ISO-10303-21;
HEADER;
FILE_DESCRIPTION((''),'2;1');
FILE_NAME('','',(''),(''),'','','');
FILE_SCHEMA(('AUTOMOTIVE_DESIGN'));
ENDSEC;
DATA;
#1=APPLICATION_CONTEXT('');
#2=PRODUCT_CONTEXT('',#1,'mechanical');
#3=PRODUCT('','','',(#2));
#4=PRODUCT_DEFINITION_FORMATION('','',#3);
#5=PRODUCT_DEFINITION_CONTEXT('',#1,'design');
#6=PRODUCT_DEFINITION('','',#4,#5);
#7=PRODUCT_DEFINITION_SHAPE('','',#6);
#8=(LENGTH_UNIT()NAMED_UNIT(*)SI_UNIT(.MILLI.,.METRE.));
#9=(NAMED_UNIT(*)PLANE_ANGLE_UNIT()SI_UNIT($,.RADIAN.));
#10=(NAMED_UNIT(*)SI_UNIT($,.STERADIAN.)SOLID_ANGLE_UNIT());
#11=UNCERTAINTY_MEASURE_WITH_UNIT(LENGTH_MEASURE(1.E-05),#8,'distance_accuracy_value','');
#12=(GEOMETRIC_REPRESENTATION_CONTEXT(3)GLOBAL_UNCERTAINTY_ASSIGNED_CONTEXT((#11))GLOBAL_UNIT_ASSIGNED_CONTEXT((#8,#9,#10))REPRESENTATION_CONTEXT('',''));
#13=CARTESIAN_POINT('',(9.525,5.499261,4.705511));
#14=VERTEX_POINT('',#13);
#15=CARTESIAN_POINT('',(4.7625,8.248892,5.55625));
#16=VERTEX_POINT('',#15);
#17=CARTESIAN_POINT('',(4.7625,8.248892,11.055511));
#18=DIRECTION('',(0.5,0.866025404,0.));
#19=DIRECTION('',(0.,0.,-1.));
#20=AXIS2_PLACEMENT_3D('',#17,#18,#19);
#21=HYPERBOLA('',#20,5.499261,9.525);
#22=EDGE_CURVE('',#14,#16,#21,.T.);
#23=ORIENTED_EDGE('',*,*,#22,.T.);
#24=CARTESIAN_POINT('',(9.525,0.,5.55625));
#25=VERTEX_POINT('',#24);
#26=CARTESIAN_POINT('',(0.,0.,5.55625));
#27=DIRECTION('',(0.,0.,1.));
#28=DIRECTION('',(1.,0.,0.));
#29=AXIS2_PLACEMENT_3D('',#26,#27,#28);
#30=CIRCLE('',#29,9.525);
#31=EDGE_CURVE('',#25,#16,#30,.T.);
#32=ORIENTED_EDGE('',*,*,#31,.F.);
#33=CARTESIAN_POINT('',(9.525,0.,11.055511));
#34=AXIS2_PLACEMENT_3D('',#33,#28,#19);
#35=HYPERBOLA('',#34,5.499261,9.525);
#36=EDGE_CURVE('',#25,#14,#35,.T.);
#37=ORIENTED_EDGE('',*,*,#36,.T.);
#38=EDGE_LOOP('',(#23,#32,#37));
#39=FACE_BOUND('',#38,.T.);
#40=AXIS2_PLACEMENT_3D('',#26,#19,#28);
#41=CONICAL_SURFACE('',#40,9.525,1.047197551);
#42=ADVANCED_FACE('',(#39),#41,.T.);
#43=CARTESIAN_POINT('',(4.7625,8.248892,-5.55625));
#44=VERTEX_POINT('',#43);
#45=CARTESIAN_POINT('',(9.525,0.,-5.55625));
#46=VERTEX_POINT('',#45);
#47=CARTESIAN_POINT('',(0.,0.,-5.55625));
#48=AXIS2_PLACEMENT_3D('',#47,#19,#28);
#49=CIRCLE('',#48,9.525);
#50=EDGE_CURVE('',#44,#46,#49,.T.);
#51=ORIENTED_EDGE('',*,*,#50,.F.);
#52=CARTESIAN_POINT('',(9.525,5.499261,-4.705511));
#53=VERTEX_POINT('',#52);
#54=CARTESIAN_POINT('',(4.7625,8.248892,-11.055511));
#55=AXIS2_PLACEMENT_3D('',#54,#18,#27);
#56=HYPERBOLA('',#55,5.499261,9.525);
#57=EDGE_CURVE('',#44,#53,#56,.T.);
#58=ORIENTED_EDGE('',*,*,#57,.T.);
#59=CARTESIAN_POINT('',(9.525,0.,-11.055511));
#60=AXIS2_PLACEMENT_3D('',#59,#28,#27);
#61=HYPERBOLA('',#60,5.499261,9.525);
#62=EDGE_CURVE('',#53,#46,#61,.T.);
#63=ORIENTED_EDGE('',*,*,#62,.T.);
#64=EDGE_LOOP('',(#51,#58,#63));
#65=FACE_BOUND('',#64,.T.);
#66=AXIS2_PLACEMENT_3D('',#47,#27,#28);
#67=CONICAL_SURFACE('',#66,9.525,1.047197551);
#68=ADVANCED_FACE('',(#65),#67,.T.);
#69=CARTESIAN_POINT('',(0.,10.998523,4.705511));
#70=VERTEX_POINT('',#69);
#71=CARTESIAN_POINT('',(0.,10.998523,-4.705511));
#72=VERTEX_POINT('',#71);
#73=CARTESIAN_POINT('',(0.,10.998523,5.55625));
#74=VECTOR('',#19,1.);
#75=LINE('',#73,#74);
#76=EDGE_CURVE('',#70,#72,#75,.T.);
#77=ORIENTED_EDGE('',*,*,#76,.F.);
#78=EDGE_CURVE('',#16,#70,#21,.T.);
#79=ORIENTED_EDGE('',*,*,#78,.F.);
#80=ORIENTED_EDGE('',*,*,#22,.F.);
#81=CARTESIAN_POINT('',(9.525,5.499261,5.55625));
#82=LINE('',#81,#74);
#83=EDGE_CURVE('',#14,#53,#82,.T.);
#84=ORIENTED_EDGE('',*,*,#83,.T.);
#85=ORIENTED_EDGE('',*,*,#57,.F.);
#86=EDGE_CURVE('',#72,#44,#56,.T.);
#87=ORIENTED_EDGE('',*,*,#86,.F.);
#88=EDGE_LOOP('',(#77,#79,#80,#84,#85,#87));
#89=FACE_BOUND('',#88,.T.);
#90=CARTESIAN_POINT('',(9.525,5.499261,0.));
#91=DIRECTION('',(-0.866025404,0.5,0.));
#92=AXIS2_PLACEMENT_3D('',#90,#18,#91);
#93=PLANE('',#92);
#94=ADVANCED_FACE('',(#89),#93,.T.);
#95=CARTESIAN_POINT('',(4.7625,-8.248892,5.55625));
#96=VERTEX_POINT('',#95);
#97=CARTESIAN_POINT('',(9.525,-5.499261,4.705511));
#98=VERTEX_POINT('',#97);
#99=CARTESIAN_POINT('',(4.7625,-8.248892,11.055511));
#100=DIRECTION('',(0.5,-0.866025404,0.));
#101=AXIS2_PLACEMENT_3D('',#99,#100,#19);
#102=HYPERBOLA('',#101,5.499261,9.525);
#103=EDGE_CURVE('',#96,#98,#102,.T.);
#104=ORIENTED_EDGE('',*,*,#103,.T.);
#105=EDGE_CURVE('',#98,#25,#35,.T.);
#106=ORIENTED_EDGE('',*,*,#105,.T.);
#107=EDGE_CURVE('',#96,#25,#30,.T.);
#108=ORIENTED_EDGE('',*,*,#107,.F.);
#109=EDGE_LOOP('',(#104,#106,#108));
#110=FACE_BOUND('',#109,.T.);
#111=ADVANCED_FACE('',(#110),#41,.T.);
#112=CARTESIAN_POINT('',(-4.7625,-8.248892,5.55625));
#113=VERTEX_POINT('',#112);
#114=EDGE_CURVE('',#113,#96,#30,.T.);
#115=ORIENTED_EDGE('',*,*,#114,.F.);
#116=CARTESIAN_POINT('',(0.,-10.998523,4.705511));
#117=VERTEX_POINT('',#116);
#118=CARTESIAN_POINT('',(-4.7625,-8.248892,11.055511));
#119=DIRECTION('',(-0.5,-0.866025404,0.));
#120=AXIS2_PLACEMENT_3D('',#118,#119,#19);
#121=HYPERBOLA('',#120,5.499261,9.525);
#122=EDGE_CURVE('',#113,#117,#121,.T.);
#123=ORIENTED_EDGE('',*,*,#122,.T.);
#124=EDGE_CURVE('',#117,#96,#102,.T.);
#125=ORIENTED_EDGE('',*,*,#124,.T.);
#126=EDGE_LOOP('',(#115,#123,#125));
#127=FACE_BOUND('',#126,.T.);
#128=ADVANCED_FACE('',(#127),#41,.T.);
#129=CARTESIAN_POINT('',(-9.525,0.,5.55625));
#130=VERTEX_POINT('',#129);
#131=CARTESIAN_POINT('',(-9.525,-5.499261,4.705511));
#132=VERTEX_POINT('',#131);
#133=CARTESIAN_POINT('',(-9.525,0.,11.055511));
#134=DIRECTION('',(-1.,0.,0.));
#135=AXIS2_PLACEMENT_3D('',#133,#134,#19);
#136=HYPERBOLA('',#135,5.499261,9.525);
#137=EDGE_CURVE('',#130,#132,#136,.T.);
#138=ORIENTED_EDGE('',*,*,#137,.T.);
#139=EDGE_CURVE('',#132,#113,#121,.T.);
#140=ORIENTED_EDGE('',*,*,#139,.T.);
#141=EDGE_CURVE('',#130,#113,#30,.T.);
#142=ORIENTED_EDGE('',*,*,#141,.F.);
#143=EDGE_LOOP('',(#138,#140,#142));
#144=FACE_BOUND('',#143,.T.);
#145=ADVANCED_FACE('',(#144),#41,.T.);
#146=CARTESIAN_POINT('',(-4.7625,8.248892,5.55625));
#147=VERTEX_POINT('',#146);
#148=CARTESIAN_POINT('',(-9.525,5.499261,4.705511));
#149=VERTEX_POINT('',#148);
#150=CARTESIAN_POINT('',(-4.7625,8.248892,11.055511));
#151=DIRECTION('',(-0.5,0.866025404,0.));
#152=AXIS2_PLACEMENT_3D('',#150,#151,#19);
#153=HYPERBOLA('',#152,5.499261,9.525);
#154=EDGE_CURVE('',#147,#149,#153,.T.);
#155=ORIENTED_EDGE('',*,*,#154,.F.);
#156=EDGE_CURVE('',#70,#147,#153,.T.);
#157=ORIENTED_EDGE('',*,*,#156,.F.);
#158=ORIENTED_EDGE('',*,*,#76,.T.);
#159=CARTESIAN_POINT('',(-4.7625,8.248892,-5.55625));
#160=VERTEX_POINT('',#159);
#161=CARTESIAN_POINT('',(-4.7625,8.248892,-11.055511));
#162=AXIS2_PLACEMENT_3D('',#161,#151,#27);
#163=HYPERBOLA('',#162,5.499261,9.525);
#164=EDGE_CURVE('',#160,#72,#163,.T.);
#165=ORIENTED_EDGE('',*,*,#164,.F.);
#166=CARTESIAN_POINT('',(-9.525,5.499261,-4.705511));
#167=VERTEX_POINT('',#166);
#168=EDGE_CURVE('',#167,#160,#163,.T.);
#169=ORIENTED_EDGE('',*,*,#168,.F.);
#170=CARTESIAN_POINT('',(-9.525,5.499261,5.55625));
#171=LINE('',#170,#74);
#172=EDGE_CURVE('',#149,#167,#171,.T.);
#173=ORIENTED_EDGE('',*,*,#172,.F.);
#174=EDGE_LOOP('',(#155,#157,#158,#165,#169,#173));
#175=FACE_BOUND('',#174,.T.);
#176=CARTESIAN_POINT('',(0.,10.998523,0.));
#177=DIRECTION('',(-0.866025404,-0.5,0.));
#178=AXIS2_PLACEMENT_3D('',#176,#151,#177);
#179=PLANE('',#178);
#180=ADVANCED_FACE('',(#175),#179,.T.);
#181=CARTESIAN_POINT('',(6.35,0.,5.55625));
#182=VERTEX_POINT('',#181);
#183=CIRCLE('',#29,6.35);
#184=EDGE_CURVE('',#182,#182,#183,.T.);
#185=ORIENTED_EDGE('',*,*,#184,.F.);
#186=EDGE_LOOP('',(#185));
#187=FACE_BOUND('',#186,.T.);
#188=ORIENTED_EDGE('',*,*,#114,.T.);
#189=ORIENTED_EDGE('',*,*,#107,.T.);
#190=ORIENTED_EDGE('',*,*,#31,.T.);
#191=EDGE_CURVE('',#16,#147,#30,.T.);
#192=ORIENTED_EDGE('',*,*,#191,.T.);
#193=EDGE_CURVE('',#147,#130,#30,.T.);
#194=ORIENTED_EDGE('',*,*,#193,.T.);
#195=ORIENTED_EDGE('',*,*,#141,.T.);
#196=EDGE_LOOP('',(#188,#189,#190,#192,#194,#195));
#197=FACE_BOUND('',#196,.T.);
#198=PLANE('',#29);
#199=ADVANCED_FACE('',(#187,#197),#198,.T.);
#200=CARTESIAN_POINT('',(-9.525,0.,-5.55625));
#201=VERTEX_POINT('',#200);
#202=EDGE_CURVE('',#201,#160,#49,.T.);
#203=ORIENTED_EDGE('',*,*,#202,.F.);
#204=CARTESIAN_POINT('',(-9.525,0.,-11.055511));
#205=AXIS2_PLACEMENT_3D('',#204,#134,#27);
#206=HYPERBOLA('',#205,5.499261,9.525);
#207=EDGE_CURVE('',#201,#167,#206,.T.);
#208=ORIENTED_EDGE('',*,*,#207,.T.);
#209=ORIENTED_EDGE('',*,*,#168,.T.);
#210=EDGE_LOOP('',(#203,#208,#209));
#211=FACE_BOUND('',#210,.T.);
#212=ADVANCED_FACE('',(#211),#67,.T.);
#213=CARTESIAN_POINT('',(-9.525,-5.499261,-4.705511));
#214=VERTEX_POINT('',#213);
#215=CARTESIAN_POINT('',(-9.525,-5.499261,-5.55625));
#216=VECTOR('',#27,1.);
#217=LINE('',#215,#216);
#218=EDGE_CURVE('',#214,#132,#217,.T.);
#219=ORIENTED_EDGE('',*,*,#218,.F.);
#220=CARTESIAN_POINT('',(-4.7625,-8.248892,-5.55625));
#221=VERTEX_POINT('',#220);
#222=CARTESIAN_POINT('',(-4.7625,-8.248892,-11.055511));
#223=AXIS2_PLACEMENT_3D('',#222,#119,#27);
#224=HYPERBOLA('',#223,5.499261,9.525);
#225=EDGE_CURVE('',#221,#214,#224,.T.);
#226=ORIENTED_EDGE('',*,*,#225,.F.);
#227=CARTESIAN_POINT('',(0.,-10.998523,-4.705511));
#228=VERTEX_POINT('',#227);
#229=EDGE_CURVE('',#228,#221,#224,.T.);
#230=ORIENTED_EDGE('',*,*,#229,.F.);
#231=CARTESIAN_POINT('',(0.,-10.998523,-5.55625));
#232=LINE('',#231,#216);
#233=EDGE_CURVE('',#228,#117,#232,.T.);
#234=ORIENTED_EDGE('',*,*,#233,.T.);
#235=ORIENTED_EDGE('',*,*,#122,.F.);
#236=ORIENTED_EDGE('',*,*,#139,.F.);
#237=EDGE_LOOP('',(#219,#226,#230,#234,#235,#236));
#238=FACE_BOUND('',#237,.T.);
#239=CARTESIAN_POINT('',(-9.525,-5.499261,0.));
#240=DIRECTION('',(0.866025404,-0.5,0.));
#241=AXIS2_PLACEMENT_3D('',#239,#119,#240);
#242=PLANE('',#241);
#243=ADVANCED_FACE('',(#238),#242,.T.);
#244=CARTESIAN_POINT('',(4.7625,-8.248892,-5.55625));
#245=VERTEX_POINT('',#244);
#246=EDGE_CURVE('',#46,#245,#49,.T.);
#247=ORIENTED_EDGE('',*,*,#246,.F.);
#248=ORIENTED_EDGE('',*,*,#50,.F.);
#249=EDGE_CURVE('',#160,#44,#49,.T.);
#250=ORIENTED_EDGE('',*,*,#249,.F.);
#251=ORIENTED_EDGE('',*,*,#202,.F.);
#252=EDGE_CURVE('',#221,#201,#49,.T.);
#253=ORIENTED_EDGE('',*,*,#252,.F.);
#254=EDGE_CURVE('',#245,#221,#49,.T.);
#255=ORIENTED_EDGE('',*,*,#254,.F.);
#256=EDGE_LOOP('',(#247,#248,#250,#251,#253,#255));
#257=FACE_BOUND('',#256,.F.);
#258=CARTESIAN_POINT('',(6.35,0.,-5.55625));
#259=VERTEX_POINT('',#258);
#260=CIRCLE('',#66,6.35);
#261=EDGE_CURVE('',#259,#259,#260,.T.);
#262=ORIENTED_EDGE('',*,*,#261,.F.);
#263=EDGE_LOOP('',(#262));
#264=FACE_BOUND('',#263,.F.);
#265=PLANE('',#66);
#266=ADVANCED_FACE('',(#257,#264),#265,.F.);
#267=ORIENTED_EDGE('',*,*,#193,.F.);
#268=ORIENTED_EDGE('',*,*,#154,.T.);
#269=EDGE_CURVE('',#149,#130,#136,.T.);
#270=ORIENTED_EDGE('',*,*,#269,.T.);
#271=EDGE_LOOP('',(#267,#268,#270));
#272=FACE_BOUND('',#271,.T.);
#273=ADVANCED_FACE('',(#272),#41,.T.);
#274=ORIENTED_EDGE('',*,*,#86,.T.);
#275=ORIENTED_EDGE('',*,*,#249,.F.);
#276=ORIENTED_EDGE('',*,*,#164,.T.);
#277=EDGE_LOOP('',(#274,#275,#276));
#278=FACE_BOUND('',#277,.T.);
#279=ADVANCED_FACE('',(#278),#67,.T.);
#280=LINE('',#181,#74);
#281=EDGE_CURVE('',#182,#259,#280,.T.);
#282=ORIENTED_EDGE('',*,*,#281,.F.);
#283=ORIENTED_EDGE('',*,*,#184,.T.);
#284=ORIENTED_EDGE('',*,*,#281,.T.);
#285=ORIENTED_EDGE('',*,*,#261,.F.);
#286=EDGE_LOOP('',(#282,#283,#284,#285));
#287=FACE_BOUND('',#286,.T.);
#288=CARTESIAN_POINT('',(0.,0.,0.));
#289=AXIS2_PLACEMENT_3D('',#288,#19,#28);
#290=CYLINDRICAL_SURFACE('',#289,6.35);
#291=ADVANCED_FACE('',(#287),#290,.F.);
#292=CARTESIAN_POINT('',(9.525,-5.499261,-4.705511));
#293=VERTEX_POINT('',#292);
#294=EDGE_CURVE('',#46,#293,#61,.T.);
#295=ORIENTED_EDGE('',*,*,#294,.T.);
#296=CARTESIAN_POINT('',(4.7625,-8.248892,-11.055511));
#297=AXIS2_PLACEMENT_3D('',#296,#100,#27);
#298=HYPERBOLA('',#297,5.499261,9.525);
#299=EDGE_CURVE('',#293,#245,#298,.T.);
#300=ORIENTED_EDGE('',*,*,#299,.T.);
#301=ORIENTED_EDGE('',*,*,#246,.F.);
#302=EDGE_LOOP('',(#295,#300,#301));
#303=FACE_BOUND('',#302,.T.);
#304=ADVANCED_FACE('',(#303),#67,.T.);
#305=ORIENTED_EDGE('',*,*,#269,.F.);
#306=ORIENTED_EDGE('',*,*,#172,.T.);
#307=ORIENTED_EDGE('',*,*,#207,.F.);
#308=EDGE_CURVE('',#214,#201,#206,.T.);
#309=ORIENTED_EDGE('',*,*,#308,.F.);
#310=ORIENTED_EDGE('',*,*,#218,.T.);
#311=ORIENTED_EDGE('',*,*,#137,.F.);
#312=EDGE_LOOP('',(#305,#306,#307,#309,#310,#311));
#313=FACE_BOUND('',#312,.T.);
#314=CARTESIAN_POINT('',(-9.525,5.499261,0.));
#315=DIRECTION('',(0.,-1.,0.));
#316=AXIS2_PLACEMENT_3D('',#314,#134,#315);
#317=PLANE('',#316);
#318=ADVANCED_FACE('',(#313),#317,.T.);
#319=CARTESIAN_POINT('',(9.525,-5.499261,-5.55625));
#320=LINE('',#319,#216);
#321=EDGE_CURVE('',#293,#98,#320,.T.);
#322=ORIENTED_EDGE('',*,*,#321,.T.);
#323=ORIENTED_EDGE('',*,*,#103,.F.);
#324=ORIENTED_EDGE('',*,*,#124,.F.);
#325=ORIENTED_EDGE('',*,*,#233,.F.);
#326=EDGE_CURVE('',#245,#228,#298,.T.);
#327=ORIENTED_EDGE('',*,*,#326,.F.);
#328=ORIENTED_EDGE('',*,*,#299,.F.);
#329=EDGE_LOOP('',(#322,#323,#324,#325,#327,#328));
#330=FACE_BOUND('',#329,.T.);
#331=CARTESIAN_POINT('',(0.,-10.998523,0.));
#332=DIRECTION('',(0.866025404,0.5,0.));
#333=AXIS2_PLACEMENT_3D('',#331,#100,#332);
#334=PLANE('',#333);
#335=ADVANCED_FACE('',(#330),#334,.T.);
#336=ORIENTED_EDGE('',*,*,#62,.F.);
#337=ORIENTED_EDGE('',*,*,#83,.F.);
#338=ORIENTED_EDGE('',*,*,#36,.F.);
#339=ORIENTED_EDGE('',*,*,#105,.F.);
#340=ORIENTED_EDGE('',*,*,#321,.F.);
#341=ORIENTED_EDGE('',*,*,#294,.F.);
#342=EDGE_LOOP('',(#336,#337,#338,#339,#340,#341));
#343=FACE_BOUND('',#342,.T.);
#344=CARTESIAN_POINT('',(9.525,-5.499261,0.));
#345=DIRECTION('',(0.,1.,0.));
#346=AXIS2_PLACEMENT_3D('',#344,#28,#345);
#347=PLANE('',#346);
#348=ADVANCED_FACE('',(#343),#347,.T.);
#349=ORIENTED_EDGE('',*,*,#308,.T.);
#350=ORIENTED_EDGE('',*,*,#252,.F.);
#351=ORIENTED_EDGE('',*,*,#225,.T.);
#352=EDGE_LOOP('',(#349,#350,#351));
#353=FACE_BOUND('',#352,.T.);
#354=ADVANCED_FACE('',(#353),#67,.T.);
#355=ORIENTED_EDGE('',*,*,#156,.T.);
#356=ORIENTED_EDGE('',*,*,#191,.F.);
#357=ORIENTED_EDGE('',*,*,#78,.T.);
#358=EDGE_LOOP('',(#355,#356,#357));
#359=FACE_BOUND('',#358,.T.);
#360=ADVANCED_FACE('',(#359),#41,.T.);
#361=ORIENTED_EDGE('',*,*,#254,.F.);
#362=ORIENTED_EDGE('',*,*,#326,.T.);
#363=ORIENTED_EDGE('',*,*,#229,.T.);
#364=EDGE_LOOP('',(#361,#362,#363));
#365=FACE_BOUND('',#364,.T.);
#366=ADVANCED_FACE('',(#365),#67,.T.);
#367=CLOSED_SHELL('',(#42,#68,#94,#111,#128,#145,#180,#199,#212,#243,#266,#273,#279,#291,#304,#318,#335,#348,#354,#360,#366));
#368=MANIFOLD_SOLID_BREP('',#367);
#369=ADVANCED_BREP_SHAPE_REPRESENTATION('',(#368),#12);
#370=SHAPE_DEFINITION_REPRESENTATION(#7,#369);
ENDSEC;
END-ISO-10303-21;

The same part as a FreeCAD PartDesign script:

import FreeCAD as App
import Part
import Sketcher
Q = App.Units.Quantity


def faces_at(feature, points):
    """Names of the faces that lie closest to the given points."""
    faces = feature.Shape.Faces
    near = lambda p: min(range(len(faces)), key=lambda i: faces[i].distToShape(Part.Vertex(*p))[0])
    return sorted({f"Face{near(p) + 1}" for p in points})


def add_polygon(sketch, points):
    """Adds a closed chain of lines whose ends are joined by coincident constraints."""
    first, n = sketch.GeometryCount, len(points)
    for a, b in zip(points, points[1:] + points[:1]):
        sketch.addGeometry(Part.LineSegment(App.Vector(*a, 0), App.Vector(*b, 0)), False)
    for i in range(n):
        sketch.addConstraint(Sketcher.Constraint("Coincident", first + i, 2, first + (i + 1) % n, 1))

doc = App.newDocument("Part")
body = doc.addObject("PartDesign::Body", "Body")

# Sketch on XY plane
sketch1 = doc.addObject("Sketcher::SketchObject", "Sketch")
body.addObject(sketch1)
sketch1.AttachmentSupport = (doc.XY_Plane, [""])
sketch1.MapMode = "FlatFace"
add_polygon(sketch1, [(-10, 5), (-10, -5), (0, -11), (10, -5), (10, 5), (0, 11)])  # lines 0-5
sketch1.addGeometry(Part.Circle(App.Vector(0, 0, 0), App.Vector(0, 0, 1), 6), False)  # 6
sketch1.addConstraint([
    Sketcher.Constraint("Vertical", 0),
    Sketcher.Constraint("Vertical", 3),
    Sketcher.Constraint("Coincident", 6, 3, -1, 1),
    Sketcher.Constraint("Symmetric", 0, 2, 3, 2, -1, 1),
    Sketcher.Constraint("Symmetric", 1, 2, 4, 2, -1, 1),
    Sketcher.Constraint("PointOnObject", 1, 2, -2),
    Sketcher.Constraint("Parallel", 2, 5),
    Sketcher.Constraint("Horizontal", 0, 2, 2, 2),
    Sketcher.Constraint("Diameter", 6, Q("0.5 in")),
    Sketcher.Constraint("Angle", 1, Q("-30 deg")),
    Sketcher.Constraint("DistanceX", 0, 2, 2, 2, Q("0.75 in")),
    Sketcher.Constraint("DistanceY", 0, 2, 0, 1, 10.998523),
])
pad1 = doc.addObject("PartDesign::Pad", "Pad")
body.addObject(pad1)
pad1.Profile = sketch1
pad1.Length = Q("0.4375 in")
pad1.Midplane = True
body2 = doc.addObject("PartDesign::Body", "Body001")

# Sketch on XY plane
sketch2 = doc.addObject("Sketcher::SketchObject", "Sketch001")
body2.addObject(sketch2)
sketch2.AttachmentSupport = (doc.getObject("XY_Plane001"), [""])
sketch2.MapMode = "FlatFace"
sketch2.AttachmentOffset = App.Placement(App.Vector(0, 0, 0.21875 * 25.4), App.Rotation())
add_polygon(sketch2, [(-58, 59), (-58, -59), (58, -59), (58, 59)])  # lines 0-3
sketch2.addGeometry(Part.Circle(App.Vector(0, 0, 0), App.Vector(0, 0, 1), 10), False)  # 4
sketch2.addConstraint([
    Sketcher.Constraint("Vertical", 0),
    Sketcher.Constraint("Horizontal", 1),
    Sketcher.Constraint("Vertical", 2),
    Sketcher.Constraint("Horizontal", 3),
    Sketcher.Constraint("Coincident", 4, 3, -1, 1),
    Sketcher.Constraint("Symmetric", 0, 2, 2, 2, -1, 1),
    Sketcher.Constraint("Diameter", 4, Q("0.75 in")),
    Sketcher.Constraint("DistanceX", 1, 1, 1, 2, 115.268),
    Sketcher.Constraint("DistanceY", 0, 2, 0, 1, 118.216),
])
pad2 = doc.addObject("PartDesign::Pad", "Pad001")
body2.addObject(pad2)
pad2.Profile = sketch2
pad2.Length = Q("1 in")
pad2.Reversed = True
doc.recompute()

datumplane = doc.addObject("PartDesign::Plane", "DatumPlane")
body2.addObject(datumplane)
datumplane.AttachmentSupport = (doc.getObject("XY_Plane001"), [""])
datumplane.MapMode = "FlatFace"
datumplane.AttachmentOffset = App.Placement(App.Vector(0, 0, 0.21875 * 25.4), App.Rotation())
draft = doc.addObject("PartDesign::Draft", "Draft")
body2.addObject(draft)
draft.Base = (pad2, faces_at(pad2, [
    (0, -59.108, -7.144),
    (57.634, 0, -7.144),
    (0, 59.108, -7.144),
    (-57.634, 0, -7.144),
    (-9.525, 0, -7.144),
]))
draft.NeutralPlane = (datumplane, [""])
draft.Angle = 60
draft.Reversed = True
doc.recompute()

boolean = doc.addObject("PartDesign::Boolean", "Boolean")
body.addObject(boolean)
boolean.Type = "Cut"
boolean.addObjects([body2])
body3 = doc.addObject("PartDesign::Body", "Body002")

# Sketch on XY plane
sketch3 = doc.addObject("Sketcher::SketchObject", "Sketch002")
body3.addObject(sketch3)
sketch3.AttachmentSupport = (doc.getObject("XY_Plane002"), [""])
sketch3.MapMode = "FlatFace"
sketch3.AttachmentOffset = App.Placement(App.Vector(0, 0, -0.21875 * 25.4), App.Rotation())
add_polygon(sketch3, [(-58, -59), (-58, 59), (58, 59), (58, -59)])  # lines 0-3
sketch3.addGeometry(Part.Circle(App.Vector(0, 0, 0), App.Vector(0, 0, 1), 10), False)  # 4
sketch3.addConstraint([
    Sketcher.Constraint("Vertical", 0),
    Sketcher.Constraint("Horizontal", 1),
    Sketcher.Constraint("Vertical", 2),
    Sketcher.Constraint("Horizontal", 3),
    Sketcher.Constraint("Coincident", 4, 3, -1, 1),
    Sketcher.Constraint("Symmetric", 0, 2, 2, 2, -1, 1),
    Sketcher.Constraint("Diameter", 4, Q("0.75 in")),
    Sketcher.Constraint("DistanceX", 1, 1, 1, 2, 115.268),
    Sketcher.Constraint("DistanceY", 0, 1, 0, 2, 118.216),
])
pad3 = doc.addObject("PartDesign::Pad", "Pad002")
body3.addObject(pad3)
pad3.Profile = sketch3
pad3.Length = Q("1 in")
doc.recompute()

datumplane2 = doc.addObject("PartDesign::Plane", "DatumPlane001")
body3.addObject(datumplane2)
datumplane2.AttachmentSupport = (doc.getObject("XY_Plane002"), [""])
datumplane2.MapMode = "FlatFace"
datumplane2.AttachmentOffset = App.Placement(App.Vector(0, 0, -0.21875 * 25.4), App.Rotation())
draft2 = doc.addObject("PartDesign::Draft", "Draft001")
body3.addObject(draft2)
draft2.Base = (pad3, faces_at(pad3, [
    (0, -59.108, 7.144),
    (57.634, 0, 7.144),
    (0, 59.108, 7.144),
    (-57.634, 0, 7.144),
    (-9.525, 0, 7.144),
]))
draft2.NeutralPlane = (datumplane2, [""])
draft2.Angle = 60
draft2.Reversed = False
doc.recompute()

boolean2 = doc.addObject("PartDesign::Boolean", "Boolean001")
body.addObject(boolean2)
boolean2.Type = "Cut"
boolean2.addObjects([body3])

doc.recompute()
